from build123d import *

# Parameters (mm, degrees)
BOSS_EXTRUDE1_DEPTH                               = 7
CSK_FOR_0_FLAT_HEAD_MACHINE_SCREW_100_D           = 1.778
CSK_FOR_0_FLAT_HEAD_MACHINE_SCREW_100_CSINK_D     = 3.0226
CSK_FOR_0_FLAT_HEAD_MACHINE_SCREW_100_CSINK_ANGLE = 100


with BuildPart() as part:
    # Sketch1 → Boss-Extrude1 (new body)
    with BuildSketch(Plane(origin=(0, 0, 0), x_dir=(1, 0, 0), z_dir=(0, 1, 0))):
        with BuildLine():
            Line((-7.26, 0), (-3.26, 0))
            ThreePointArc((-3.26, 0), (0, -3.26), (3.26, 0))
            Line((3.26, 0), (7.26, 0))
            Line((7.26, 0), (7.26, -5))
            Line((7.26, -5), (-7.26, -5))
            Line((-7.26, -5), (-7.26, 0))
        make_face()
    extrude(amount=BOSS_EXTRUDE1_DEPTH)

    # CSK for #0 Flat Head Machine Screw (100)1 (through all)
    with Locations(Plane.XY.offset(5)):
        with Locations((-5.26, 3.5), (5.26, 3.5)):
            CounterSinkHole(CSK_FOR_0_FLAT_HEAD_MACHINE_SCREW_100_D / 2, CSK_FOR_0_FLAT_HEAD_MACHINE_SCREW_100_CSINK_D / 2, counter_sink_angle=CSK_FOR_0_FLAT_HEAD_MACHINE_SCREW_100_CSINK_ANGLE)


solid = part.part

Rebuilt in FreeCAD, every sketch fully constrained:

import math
import FreeCAD as App
import Part
import Sketcher

doc = App.newDocument("Part")
params = doc.addObject("Spreadsheet::Sheet", "Params")
for row, (alias, value) in enumerate([
    ("sketch1_width", "4 mm"),
    ("sketch1_height", "5 mm"),
    ("sketch1_radius", "3.26 mm"),
    ("pad1_length", "7 mm"),
    ("hole_diameter", "1.778 mm"),
    ("hole_csink_diameter", "3.0226 mm"),
], start=1):
    params.set(f"A{row}", alias)
    params.set(f"B{row}", "=" + value)
    params.setAlias(f"B{row}", alias)

body = doc.addObject("PartDesign::Body", "Body")

# Sketch on XZ plane
sketch1 = doc.addObject("Sketcher::SketchObject", "Sketch")
body.addObject(sketch1)
sketch1.AttachmentSupport = (doc.XZ_Plane, [""])
sketch1.MapMode = "FlatFace"
sketch1.addGeometry([
    Part.LineSegment(App.Vector(-3.3, 0, 0), App.Vector(-7.3, 0, 0)),  # 0
    Part.LineSegment(App.Vector(-7.3, 0, 0), App.Vector(-7.3, 5, 0)),  # 1
    Part.LineSegment(App.Vector(-7.3, 5, 0), App.Vector(7.3, 5, 0)),  # 2
    Part.LineSegment(App.Vector(7.3, 5, 0), App.Vector(7.3, 0, 0)),  # 3
    Part.LineSegment(App.Vector(7.3, 0, 0), App.Vector(3.3, 0, 0)),  # 4
    Part.ArcOfCircle(Part.Circle(App.Vector(0, 0, 0), App.Vector(0, 0, 1), 3.3), math.radians(0), math.radians(180)),  # 5
], False)
sketch1.addConstraint([
    Sketcher.Constraint("Coincident", 0, 2, 1, 1),
    Sketcher.Constraint("Coincident", 1, 2, 2, 1),
    Sketcher.Constraint("Coincident", 2, 2, 3, 1),
    Sketcher.Constraint("Coincident", 3, 2, 4, 1),
    Sketcher.Constraint("Coincident", 4, 2, 5, 1),
    Sketcher.Constraint("Coincident", 5, 2, 0, 1),
    Sketcher.Constraint("Horizontal", 0),
    Sketcher.Constraint("Vertical", 1),
    Sketcher.Constraint("Horizontal", 2),
    Sketcher.Constraint("Vertical", 3),
    Sketcher.Constraint("Horizontal", 4),
    Sketcher.Constraint("Coincident", 5, 3, -1, 1),
    Sketcher.Constraint("Symmetric", 0, 2, 3, 2, -1, 1),
    Sketcher.Constraint("PointOnObject", 0, 2, -1),
    Sketcher.Constraint("DistanceX", 0, 2, 0, 1, 4.0),
    Sketcher.Constraint("DistanceY", 1, 1, 1, 2, 5.0),
    Sketcher.Constraint("Radius", 5, 3.26),
])
sketch1.setExpression("Constraints[14]", "Params.sketch1_width")
sketch1.setExpression("Constraints[15]", "Params.sketch1_height")
sketch1.setExpression("Constraints[16]", "Params.sketch1_radius")
pad1 = doc.addObject("PartDesign::Pad", "Pad")
body.addObject(pad1)
pad1.Profile = sketch1
pad1.setExpression("Length", "Params.pad1_length")
pad1.Reversed = True

# Sketch on XY plane
sketch2 = doc.addObject("Sketcher::SketchObject", "Sketch001")
body.addObject(sketch2)
sketch2.AttachmentSupport = (doc.XY_Plane, [""])
sketch2.MapMode = "FlatFace"
sketch2.AttachmentOffset = App.Placement(App.Vector(0, 0, 5), App.Rotation())
sketch2.addGeometry([
    Part.Circle(App.Vector(-5.3, 3.5, 0), App.Vector(0, 0, 1), 0.9),
    Part.Circle(App.Vector(5.3, 3.5, 0), App.Vector(0, 0, 1), 0.9),
], False)
sketch2.addConstraint([
    Sketcher.Constraint("Equal", 0, 1),
    Sketcher.Constraint("Symmetric", 0, 3, 1, 3, -2),
    Sketcher.Constraint("Diameter", 0, 1.778),
    Sketcher.Constraint("DistanceY", -1, 1, 0, 3, 3.5),
    Sketcher.Constraint("DistanceX", 0, 3, -1, 1, 5.26),
])
doc.recompute()
hole = doc.addObject("PartDesign::Hole", "Hole")
body.addObject(hole)
hole.Profile = sketch2
hole.ThreadType = "None"
hole.setExpression("Diameter", "Params.hole_diameter")
hole.DepthType = "ThroughAll"
hole.HoleCutType = "Countersink"
hole.setExpression("HoleCutDiameter", "Params.hole_csink_diameter")
hole.HoleCutCountersinkAngle = 100

doc.recompute()
